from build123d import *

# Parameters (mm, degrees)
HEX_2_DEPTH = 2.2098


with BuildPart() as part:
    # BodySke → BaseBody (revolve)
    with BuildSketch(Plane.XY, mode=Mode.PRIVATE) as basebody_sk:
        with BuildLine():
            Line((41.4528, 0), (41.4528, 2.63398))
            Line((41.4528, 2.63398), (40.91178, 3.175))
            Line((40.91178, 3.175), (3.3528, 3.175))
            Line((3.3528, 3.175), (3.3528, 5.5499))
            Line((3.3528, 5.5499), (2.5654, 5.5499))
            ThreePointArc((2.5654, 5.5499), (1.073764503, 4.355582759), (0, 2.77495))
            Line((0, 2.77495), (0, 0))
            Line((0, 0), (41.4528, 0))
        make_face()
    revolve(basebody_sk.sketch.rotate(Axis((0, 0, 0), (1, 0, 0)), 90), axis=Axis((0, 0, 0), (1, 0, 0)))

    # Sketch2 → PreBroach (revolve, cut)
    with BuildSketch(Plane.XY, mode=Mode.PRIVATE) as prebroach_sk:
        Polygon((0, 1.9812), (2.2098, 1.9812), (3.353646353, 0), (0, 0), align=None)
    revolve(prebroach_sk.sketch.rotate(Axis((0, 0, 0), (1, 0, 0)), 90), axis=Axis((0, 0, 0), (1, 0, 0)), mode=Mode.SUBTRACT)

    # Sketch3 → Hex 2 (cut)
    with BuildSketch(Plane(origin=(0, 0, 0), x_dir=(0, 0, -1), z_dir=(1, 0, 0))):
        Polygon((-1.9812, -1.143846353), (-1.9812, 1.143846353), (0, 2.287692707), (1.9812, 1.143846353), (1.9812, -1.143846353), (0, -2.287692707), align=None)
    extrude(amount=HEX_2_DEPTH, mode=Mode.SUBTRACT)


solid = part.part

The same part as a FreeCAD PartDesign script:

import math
import FreeCAD as App
import Part
import Sketcher

V = App.Vector
Q = App.Units.Quantity


def add_polygon(sketch, points):
    """Adds a closed chain of lines whose ends are joined by coincident constraints."""
    first, n = sketch.GeometryCount, len(points)
    for a, b in zip(points, points[1:] + points[:1]):
        sketch.addGeometry(Part.LineSegment(App.Vector(*a, 0), App.Vector(*b, 0)), False)
    for i in range(n):
        sketch.addConstraint(Sketcher.Constraint("Coincident", first + i, 2, first + (i + 1) % n, 1))

doc = App.newDocument("Part")
body = doc.addObject("PartDesign::Body", "Body")

# Sketch on XY plane
sketch1 = body.newObject("Sketcher::SketchObject", "Sketch")
sketch1.AttachmentSupport = (doc.getObject("XY_Plane"), [""])
sketch1.MapMode = "FlatFace"
sketch1.addGeometry([
    Part.LineSegment(V(41.4528, 0, 0), V(41.4528, 2.63398, 0)),  # 0
    Part.LineSegment(V(41.4528, 2.63398, 0), V(40.91178, 3.175, 0)),  # 1
    Part.LineSegment(V(40.91178, 3.175, 0), V(3.3528, 3.175, 0)),  # 2
    Part.LineSegment(V(3.3528, 3.175, 0), V(3.3528, 5.5499, 0)),  # 3
    Part.LineSegment(V(3.3528, 5.5499, 0), V(2.5654, 5.5499, 0)),  # 4
    Part.ArcOfCircle(Part.Circle(V(5.785125, 0, 0), V(0, 0, 1), 6.416231), math.radians(120.119782), math.radians(154.374371)),  # 5
    Part.LineSegment(V(0, 2.77495, 0), V(0, 0, 0)),  # 6
    Part.LineSegment(V(0, 0, 0), V(41.4528, 0, 0)),  # 7
], False)
sketch1.addConstraint([
    Sketcher.Constraint("Coincident", 0, 2, 1, 1),
    Sketcher.Constraint("Coincident", 1, 2, 2, 1),
    Sketcher.Constraint("Coincident", 2, 2, 3, 1),
    Sketcher.Constraint("Coincident", 3, 2, 4, 1),
    Sketcher.Constraint("Coincident", 4, 2, 5, 1),
    Sketcher.Constraint("Coincident", 5, 2, 6, 1),
    Sketcher.Constraint("Coincident", 6, 2, 7, 1),
    Sketcher.Constraint("Coincident", 7, 2, 0, 1),
    Sketcher.Constraint("Vertical", 0),
    Sketcher.Constraint("Horizontal", 2),
    Sketcher.Constraint("Vertical", 3),
    Sketcher.Constraint("Horizontal", 4),
    Sketcher.Constraint("Vertical", 6),
    Sketcher.Constraint("Horizontal", 7),
    Sketcher.Constraint("Coincident", 6, 2, -1, 1),
    Sketcher.Constraint("PointOnObject", 5, 3, -1),
    Sketcher.Constraint("Angle", 1, Q("135 deg")),
    Sketcher.Constraint("DistanceX", 2, 2, 0, 2, Q("1.5 in")),
    Sketcher.Constraint("DistanceX", 4, 2, 4, 1, Q("0.031 in")),
    Sketcher.Constraint("DistanceX", 7, 1, 7, 2, Q("1.632 in")),
    Sketcher.Constraint("DistanceX", 2, 2, 2, 1, Q("1.4787 in")),
    Sketcher.Constraint("DistanceY", 0, 1, 0, 2, Q("0.1037 in")),
    Sketcher.Constraint("DistanceY", 3, 1, 3, 2, Q("0.0935 in")),
    Sketcher.Constraint("Radius", 5, 6.416231),
])
revolution = body.newObject("PartDesign::Revolution", "Revolution")
revolution.Profile = sketch1
revolution.ReferenceAxis = (sketch1, ["H_Axis"])
revolution.Angle = 360

# Sketch on XY plane
sketch2 = body.newObject("Sketcher::SketchObject", "Sketch001")
sketch2.AttachmentSupport = (doc.getObject("XY_Plane"), [""])
sketch2.MapMode = "FlatFace"
add_polygon(sketch2, [(2.2098, 1.9812), (0, 1.9812), (0, 0), (3.353646, 0)])  # lines 0-3
sketch2.addConstraint([
    Sketcher.Constraint("Horizontal", 0),
    Sketcher.Constraint("Vertical", 1),
    Sketcher.Constraint("Horizontal", 2),
    Sketcher.Constraint("Coincident", 1, 2, -1, 1),
    Sketcher.Constraint("Angle", 3, Q("120 deg")),
    Sketcher.Constraint("DistanceX", 0, 2, 0, 1, Q("0.087 in")),
    Sketcher.Constraint("DistanceY", 1, 2, 1, 1, Q("0.078 in")),
])
groove = body.newObject("PartDesign::Groove", "Groove")
groove.Profile = sketch2
groove.ReferenceAxis = (sketch2, ["H_Axis"])
groove.Angle = 360

# Sketch on YZ plane
sketch3 = body.newObject("Sketcher::SketchObject", "Sketch002")
sketch3.AttachmentSupport = (doc.getObject("YZ_Plane"), [""])
sketch3.MapMode = "FlatFace"
add_polygon(sketch3, [(1.143846, 1.9812), (-1.143846, 1.9812), (-2.287693, 0), (-1.143846, -1.9812), (1.143846, -1.9812), (2.287693, 0)])  # lines 0-5
sketch3.addConstraint([
    Sketcher.Constraint("Horizontal", 0),
    Sketcher.Constraint("Horizontal", 3),
    Sketcher.Constraint("Symmetric", 0, 2, 3, 2, -1, 1),
    Sketcher.Constraint("Symmetric", 1, 2, 4, 2, -1, 1),
    Sketcher.Constraint("PointOnObject", 1, 2, -1),
    Sketcher.Constraint("Parallel", 2, 5),
    Sketcher.Constraint("Vertical", 0, 2, 2, 2),
    Sketcher.Constraint("Angle", 1, Q("-120 deg")),
    Sketcher.Constraint("DistanceY", -1, 1, 0, 2, Q("0.078 in")),
    Sketcher.Constraint("DistanceX", 1, 2, 3, 2, Q("0.1351 in")),
])
pocket1 = body.newObject("PartDesign::Pocket", "Pocket")
pocket1.Profile = sketch3
pocket1.Length = Q("0.087 in")
pocket1.Reversed = True

doc.recompute()
